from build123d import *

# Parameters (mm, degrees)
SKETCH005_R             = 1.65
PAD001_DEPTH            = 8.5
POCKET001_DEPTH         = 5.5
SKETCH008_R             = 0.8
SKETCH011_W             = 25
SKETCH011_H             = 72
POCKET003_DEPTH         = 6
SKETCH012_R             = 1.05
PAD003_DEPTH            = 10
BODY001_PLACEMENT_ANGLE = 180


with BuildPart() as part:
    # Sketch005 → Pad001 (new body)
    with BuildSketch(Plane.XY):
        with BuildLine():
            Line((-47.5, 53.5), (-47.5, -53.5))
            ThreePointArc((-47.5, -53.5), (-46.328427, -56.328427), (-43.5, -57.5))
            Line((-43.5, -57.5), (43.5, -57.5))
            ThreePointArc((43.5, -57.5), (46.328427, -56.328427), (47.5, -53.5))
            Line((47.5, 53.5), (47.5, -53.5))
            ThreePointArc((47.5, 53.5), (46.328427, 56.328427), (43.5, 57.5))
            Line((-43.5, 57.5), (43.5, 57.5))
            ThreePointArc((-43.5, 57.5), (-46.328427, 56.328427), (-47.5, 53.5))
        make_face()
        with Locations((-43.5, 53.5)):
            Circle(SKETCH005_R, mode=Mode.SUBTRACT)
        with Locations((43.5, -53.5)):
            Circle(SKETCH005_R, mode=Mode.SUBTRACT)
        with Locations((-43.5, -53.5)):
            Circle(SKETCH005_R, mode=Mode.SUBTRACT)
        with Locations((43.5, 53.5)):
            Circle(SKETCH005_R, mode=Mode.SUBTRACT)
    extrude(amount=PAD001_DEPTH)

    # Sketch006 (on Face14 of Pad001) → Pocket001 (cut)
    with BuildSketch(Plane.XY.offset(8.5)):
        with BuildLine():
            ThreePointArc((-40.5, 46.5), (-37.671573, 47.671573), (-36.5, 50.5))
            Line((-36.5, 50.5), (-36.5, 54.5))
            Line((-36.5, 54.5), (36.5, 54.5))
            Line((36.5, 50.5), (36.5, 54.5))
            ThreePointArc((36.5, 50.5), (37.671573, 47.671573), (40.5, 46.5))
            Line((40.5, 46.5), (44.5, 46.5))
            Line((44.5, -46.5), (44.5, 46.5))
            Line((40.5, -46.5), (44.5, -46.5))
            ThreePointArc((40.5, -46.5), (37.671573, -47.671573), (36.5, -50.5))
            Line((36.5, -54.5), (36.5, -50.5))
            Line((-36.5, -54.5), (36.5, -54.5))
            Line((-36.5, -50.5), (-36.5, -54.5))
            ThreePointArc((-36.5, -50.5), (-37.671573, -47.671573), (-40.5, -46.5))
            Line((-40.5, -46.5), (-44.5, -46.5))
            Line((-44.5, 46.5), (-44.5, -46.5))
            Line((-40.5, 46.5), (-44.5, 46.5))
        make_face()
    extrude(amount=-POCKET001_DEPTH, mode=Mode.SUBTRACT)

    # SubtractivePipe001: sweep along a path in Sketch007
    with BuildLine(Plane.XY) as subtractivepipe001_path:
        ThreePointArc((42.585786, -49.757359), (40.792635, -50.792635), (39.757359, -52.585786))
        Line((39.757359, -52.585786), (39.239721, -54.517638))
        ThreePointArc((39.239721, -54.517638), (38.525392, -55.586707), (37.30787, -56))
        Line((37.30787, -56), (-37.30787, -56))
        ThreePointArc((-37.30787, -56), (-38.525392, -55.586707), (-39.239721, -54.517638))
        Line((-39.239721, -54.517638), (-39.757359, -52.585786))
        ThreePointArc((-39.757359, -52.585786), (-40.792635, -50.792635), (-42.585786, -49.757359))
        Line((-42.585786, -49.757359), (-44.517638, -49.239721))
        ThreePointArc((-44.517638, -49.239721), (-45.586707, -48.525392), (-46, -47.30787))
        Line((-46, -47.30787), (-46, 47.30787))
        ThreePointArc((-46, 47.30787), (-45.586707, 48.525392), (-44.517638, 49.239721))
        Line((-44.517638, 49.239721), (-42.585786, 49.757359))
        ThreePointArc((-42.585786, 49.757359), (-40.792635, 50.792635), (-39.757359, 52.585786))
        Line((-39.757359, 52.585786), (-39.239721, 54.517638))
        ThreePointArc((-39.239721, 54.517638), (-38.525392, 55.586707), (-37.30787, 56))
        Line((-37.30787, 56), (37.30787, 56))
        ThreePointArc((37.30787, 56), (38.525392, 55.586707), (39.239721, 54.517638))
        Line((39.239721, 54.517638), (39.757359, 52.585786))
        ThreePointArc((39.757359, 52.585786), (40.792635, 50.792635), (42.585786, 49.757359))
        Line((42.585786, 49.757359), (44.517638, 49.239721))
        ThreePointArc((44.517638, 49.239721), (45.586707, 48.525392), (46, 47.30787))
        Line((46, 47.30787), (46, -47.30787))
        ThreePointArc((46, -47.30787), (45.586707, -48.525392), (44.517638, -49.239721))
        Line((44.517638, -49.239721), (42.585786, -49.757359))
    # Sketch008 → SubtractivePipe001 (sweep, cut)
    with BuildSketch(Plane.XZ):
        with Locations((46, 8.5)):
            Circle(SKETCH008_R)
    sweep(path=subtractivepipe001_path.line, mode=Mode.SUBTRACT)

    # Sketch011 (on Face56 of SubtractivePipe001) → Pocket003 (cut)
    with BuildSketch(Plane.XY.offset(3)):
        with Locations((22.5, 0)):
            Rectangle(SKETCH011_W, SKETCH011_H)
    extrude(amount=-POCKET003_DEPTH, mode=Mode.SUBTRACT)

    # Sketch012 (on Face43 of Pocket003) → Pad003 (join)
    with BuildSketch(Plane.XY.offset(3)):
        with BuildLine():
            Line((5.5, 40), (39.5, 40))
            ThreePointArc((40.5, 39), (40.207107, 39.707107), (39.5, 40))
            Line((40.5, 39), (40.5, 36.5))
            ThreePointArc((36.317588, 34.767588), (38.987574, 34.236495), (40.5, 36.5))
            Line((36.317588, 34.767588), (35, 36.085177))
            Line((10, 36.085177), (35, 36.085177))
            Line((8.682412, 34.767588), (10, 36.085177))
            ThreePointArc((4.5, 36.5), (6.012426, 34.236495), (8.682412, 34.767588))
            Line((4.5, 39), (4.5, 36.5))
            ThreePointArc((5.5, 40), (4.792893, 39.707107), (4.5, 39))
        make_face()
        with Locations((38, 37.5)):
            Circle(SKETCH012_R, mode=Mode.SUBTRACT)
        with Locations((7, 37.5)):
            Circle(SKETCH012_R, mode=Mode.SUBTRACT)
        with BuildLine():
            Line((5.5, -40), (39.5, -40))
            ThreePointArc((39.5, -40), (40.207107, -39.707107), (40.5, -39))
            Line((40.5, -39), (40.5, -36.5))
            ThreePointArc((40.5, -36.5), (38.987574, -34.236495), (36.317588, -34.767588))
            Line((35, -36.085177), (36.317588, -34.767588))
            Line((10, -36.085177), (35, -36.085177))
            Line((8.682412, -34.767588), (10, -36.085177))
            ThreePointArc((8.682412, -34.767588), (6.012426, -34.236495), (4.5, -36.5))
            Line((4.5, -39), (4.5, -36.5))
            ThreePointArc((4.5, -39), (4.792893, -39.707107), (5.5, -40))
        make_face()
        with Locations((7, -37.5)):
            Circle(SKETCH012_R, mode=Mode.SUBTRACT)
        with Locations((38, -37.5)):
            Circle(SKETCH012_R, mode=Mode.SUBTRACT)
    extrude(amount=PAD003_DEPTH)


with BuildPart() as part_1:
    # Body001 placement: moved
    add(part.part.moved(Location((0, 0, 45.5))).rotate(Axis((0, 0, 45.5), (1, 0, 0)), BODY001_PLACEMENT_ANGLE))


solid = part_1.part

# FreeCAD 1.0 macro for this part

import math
import FreeCAD as App
import Part
import Sketcher
from FreeCAD import Vector
Q = App.Units.Quantity

doc = App.newDocument("Part")
body = doc.addObject("PartDesign::Body", "Body")

# Sketch on XY plane
sketch1 = body.newObject("Sketcher::SketchObject", "Sketch")
sketch1.AttachmentSupport = (doc.getObject("XY_Plane"), [""])
sketch1.MapMode = "FlatFace"
sketch1.addGeometry(Part.LineSegment(Vector(-47.5, 53.5, 0), Vector(-47.5, -53.5, 0)), False)
sketch1.addGeometry(Part.ArcOfCircle(Part.Circle(Vector(-43.5, -53.5, 0), Vector(0, 0, 1), 4), math.radians(-179.999994), math.radians(-90.000006)), False)
sketch1.addGeometry(Part.LineSegment(Vector(-43.5, -57.5, 0), Vector(43.5, -57.5, 0)), False)
sketch1.addGeometry(Part.ArcOfCircle(Part.Circle(Vector(43.5, -53.5, 0), Vector(0, 0, 1), 4), math.radians(-89.999994), math.radians(-0.000006)), False)
sketch1.addGeometry(Part.LineSegment(Vector(47.5, -53.5, 0), Vector(47.5, 53.5, 0)), False)
sketch1.addGeometry(Part.ArcOfCircle(Part.Circle(Vector(43.5, 53.5, 0), Vector(0, 0, 1), 4), math.radians(0.000006), math.radians(89.999994)), False)
sketch1.addGeometry(Part.LineSegment(Vector(43.5, 57.5, 0), Vector(-43.5, 57.5, 0)), False)
sketch1.addGeometry(Part.ArcOfCircle(Part.Circle(Vector(-43.5, 53.5, 0), Vector(0, 0, 1), 4), math.radians(90.000006), math.radians(179.999994)), False)
sketch1.addGeometry(Part.Circle(Vector(-43.5, -53.5, 0), Vector(0, 0, 1), 1.65), False)
sketch1.addGeometry(Part.Circle(Vector(43.5, -53.5, 0), Vector(0, 0, 1), 1.65), False)
sketch1.addGeometry(Part.Circle(Vector(-43.5, 53.5, 0), Vector(0, 0, 1), 1.65), False)
sketch1.addGeometry(Part.Circle(Vector(43.5, 53.5, 0), Vector(0, 0, 1), 1.65), False)
sketch1.addConstraint(Sketcher.Constraint("Tangent", 0, 2, 1, 1))
sketch1.addConstraint(Sketcher.Constraint("Tangent", 1, 2, 2, 1))
sketch1.addConstraint(Sketcher.Constraint("Tangent", 2, 2, 3, 1))
sketch1.addConstraint(Sketcher.Constraint("Tangent", 3, 2, 4, 1))
sketch1.addConstraint(Sketcher.Constraint("Tangent", 4, 2, 5, 1))
sketch1.addConstraint(Sketcher.Constraint("Tangent", 5, 2, 6, 1))
sketch1.addConstraint(Sketcher.Constraint("Tangent", 6, 2, 7, 1))
sketch1.addConstraint(Sketcher.Constraint("Tangent", 7, 2, 0, 1))
sketch1.addConstraint(Sketcher.Constraint("Vertical", 0))
sketch1.addConstraint(Sketcher.Constraint("Horizontal", 2))
sketch1.addConstraint(Sketcher.Constraint("Vertical", 4))
sketch1.addConstraint(Sketcher.Constraint("Horizontal", 6))
sketch1.addConstraint(Sketcher.Constraint("Coincident", 8, 3, 1, 3))
sketch1.addConstraint(Sketcher.Constraint("Coincident", 9, 3, 3, 3))
sketch1.addConstraint(Sketcher.Constraint("Coincident", 10, 3, 7, 3))
sketch1.addConstraint(Sketcher.Constraint("Coincident", 11, 3, 5, 3))
sketch1.addConstraint(Sketcher.Constraint("Equal", 1, 3))
sketch1.addConstraint(Sketcher.Constraint("Equal", 3, 5))
sketch1.addConstraint(Sketcher.Constraint("Equal", 5, 7))
sketch1.addConstraint(Sketcher.Constraint("Equal", 8, 9))
sketch1.addConstraint(Sketcher.Constraint("Equal", 9, 10))
sketch1.addConstraint(Sketcher.Constraint("Equal", 10, 11))
sketch1.addConstraint(Sketcher.Constraint("Symmetric", 1, 3, 5, 3, -1, 1))
sketch1.addConstraint(Sketcher.Constraint("Radius", 1, Q("4 mm")))
sketch1.addConstraint(Sketcher.Constraint("Diameter", 8, Q("3.3 mm")))
sketch1.addConstraint(Sketcher.Constraint("DistanceX", 2, 1, 2, 2, Q("87 mm")))
sketch1.addConstraint(Sketcher.Constraint("DistanceY", 0, 2, 0, 1, Q("107 mm")))
pad1 = body.newObject("PartDesign::Pad", "Pad")
pad1.Profile = sketch1
pad1.Length = 8.5

# Sketch on XY plane
sketch2 = body.newObject("Sketcher::SketchObject", "Sketch001")
sketch2.AttachmentSupport = (doc.getObject("XY_Plane"), [""])
sketch2.MapMode = "FlatFace"
sketch2.AttachmentOffset = App.Placement(Vector(0, 0, 8.5), App.Rotation())
sketch2.addGeometry(Part.ArcOfCircle(Part.Circle(Vector(-40.5, 50.5, 0), Vector(0, 0, 1), 4), math.radians(-89.999994), math.radians(-0.000006)), False)
sketch2.addGeometry(Part.LineSegment(Vector(-40.5, 46.5, 0), Vector(-44.5, 46.5, 0)), False)
sketch2.addGeometry(Part.LineSegment(Vector(-44.5, 46.5, 0), Vector(-44.5, -46.5, 0)), False)
sketch2.addGeometry(Part.LineSegment(Vector(-44.5, -46.5, 0), Vector(-40.5, -46.5, 0)), False)
sketch2.addGeometry(Part.ArcOfCircle(Part.Circle(Vector(-40.5, -50.5, 0), Vector(0, 0, 1), 4), math.radians(0.000006), math.radians(89.999994)), False)
sketch2.addGeometry(Part.LineSegment(Vector(-36.5, -50.5, 0), Vector(-36.5, -54.5, 0)), False)
sketch2.addGeometry(Part.LineSegment(Vector(-36.5, -54.5, 0), Vector(36.5, -54.5, 0)), False)
sketch2.addGeometry(Part.LineSegment(Vector(36.5, -54.5, 0), Vector(36.5, -50.5, 0)), False)
sketch2.addGeometry(Part.ArcOfCircle(Part.Circle(Vector(40.5, -50.5, 0), Vector(0, 0, 1), 4), math.radians(90.000006), math.radians(179.999994)), False)
sketch2.addGeometry(Part.LineSegment(Vector(40.5, -46.5, 0), Vector(44.5, -46.5, 0)), False)
sketch2.addGeometry(Part.LineSegment(Vector(44.5, -46.5, 0), Vector(44.5, 46.5, 0)), False)
sketch2.addGeometry(Part.LineSegment(Vector(44.5, 46.5, 0), Vector(40.5, 46.5, 0)), False)
sketch2.addGeometry(Part.ArcOfCircle(Part.Circle(Vector(40.5, 50.5, 0), Vector(0, 0, 1), 4), math.radians(-179.999994), math.radians(-90.000006)), False)
sketch2.addGeometry(Part.LineSegment(Vector(36.5, 50.5, 0), Vector(36.5, 54.5, 0)), False)
sketch2.addGeometry(Part.LineSegment(Vector(36.5, 54.5, 0), Vector(-36.5, 54.5, 0)), False)
sketch2.addGeometry(Part.LineSegment(Vector(-36.5, 54.5, 0), Vector(-36.5, 50.5, 0)), False)
sketch2.addConstraint(Sketcher.Constraint("Tangent", 0, 1, 1, 1))
sketch2.addConstraint(Sketcher.Constraint("Coincident", 1, 2, 2, 1))
sketch2.addConstraint(Sketcher.Constraint("Coincident", 2, 2, 3, 1))
sketch2.addConstraint(Sketcher.Constraint("Tangent", 3, 2, 4, 2))
sketch2.addConstraint(Sketcher.Constraint("Tangent", 4, 1, 5, 1))
sketch2.addConstraint(Sketcher.Constraint("Coincident", 5, 2, 6, 1))
sketch2.addConstraint(Sketcher.Constraint("Coincident", 6, 2, 7, 1))
sketch2.addConstraint(Sketcher.Constraint("Tangent", 7, 2, 8, 2))
sketch2.addConstraint(Sketcher.Constraint("Tangent", 8, 1, 9, 1))
sketch2.addConstraint(Sketcher.Constraint("Coincident", 9, 2, 10, 1))
sketch2.addConstraint(Sketcher.Constraint("Coincident", 10, 2, 11, 1))
sketch2.addConstraint(Sketcher.Constraint("Tangent", 11, 2, 12, 2))
sketch2.addConstraint(Sketcher.Constraint("Tangent", 12, 1, 13, 1))
sketch2.addConstraint(Sketcher.Constraint("Coincident", 13, 2, 14, 1))
sketch2.addConstraint(Sketcher.Constraint("Coincident", 14, 2, 15, 1))
sketch2.addConstraint(Sketcher.Constraint("Tangent", 15, 2, 0, 2))
sketch2.addConstraint(Sketcher.Constraint("Horizontal", 1))
sketch2.addConstraint(Sketcher.Constraint("Vertical", 2))
sketch2.addConstraint(Sketcher.Constraint("Horizontal", 3))
sketch2.addConstraint(Sketcher.Constraint("Vertical", 5))
sketch2.addConstraint(Sketcher.Constraint("Horizontal", 6))
sketch2.addConstraint(Sketcher.Constraint("Vertical", 7))
sketch2.addConstraint(Sketcher.Constraint("Horizontal", 9))
sketch2.addConstraint(Sketcher.Constraint("Vertical", 10))
sketch2.addConstraint(Sketcher.Constraint("Horizontal", 11))
sketch2.addConstraint(Sketcher.Constraint("Vertical", 13))
sketch2.addConstraint(Sketcher.Constraint("Horizontal", 14))
sketch2.addConstraint(Sketcher.Constraint("Vertical", 15))
sketch2.addConstraint(Sketcher.Constraint("Equal", 0, 4))
sketch2.addConstraint(Sketcher.Constraint("Equal", 4, 8))
sketch2.addConstraint(Sketcher.Constraint("Equal", 8, 12))
sketch2.addConstraint(Sketcher.Constraint("Symmetric", 0, 3, 8, 3, -1, 1))
sketch2.addConstraint(Sketcher.Constraint("Symmetric", 4, 3, 12, 3, -1, 1))
sketch2.addConstraint(Sketcher.Constraint("Symmetric", 4, 3, 8, 3, -2))
sketch2.addConstraint(Sketcher.Constraint("Equal", 3, 9))
sketch2.addConstraint(Sketcher.Constraint("Equal", 11, 5))
sketch2.addConstraint(Sketcher.Constraint("Equal", 7, 13))
sketch2.addConstraint(Sketcher.Constraint("Radius", 0, Q("4 mm")))
sketch2.addConstraint(Sketcher.Constraint("DistanceX", 1, 2, 1, 1, Q("4 mm")))
sketch2.addConstraint(Sketcher.Constraint("DistanceX", 6, 1, 6, 2, Q("73 mm")))
sketch2.addConstraint(Sketcher.Constraint("DistanceY", 2, 2, 2, 1, Q("93 mm")))
pocket1 = body.newObject("PartDesign::Pocket", "Pocket")
pocket1.Profile = sketch2
pocket1.Length = 5.5

# Sketch on XZ plane
sketch3 = body.newObject("Sketcher::SketchObject", "Sketch002")
sketch3.AttachmentSupport = (doc.getObject("XZ_Plane"), [""])
sketch3.MapMode = "FlatFace"
sketch3.addGeometry(Part.Circle(Vector(46, 8.5, 0), Vector(0, 0, 1), 0.8), False)
sketch3.addConstraint(Sketcher.Constraint("Diameter", 0, Q("1.6 mm")))
sketch3.addConstraint(Sketcher.Constraint("DistanceX", -1, 1, 0, 3, Q("46 mm")))
sketch3.addConstraint(Sketcher.Constraint("DistanceY", -1, 1, 0, 3, Q("8.5 mm")))

# Sketch on XY plane
sketch4 = body.newObject("Sketcher::SketchObject", "Sketch003")
sketch4.AttachmentSupport = (doc.getObject("XY_Plane"), [""])
sketch4.MapMode = "FlatFace"
sketch4.addGeometry(Part.ArcOfCircle(Part.Circle(Vector(43.621061, -53.621061, 0), Vector(0, 0, 1), 3.999999), math.radians(104.99999), math.radians(165.00001)), False)
sketch4.addGeometry(Part.LineSegment(Vector(39.757359, -52.585786, 0), Vector(39.239721, -54.517638, 0)), False)
sketch4.addGeometry(Part.ArcOfCircle(Part.Circle(Vector(37.30787, -54.000001, 0), Vector(0, 0, 1), 1.999999), math.radians(-89.999993), math.radians(-14.999985)), False)
sketch4.addGeometry(Part.LineSegment(Vector(37.30787, -56, 0), Vector(-37.30787, -56, 0)), False)
sketch4.addGeometry(Part.ArcOfCircle(Part.Circle(Vector(-37.30787, -54.000001, 0), Vector(0, 0, 1), 1.999999), math.radians(-165.000015), math.radians(-90.000007)), False)
sketch4.addGeometry(Part.LineSegment(Vector(-39.239721, -54.517638, 0), Vector(-39.757359, -52.585786, 0)), False)
sketch4.addGeometry(Part.ArcOfCircle(Part.Circle(Vector(-43.621061, -53.621061, 0), Vector(0, 0, 1), 3.999999), math.radians(14.99999), math.radians(75.00001)), False)
sketch4.addGeometry(Part.LineSegment(Vector(-42.585786, -49.757359, 0), Vector(-44.517638, -49.239721, 0)), False)
sketch4.addGeometry(Part.ArcOfCircle(Part.Circle(Vector(-44.000001, -47.30787, 0), Vector(0, 0, 1), 1.999999), math.radians(-179.999993), math.radians(-104.999985)), False)
sketch4.addGeometry(Part.LineSegment(Vector(-46, -47.30787, 0), Vector(-46, 47.30787, 0)), False)
sketch4.addGeometry(Part.ArcOfCircle(Part.Circle(Vector(-44.000001, 47.30787, 0), Vector(0, 0, 1), 1.999999), math.radians(104.999985), math.radians(179.999993)), False)
sketch4.addGeometry(Part.LineSegment(Vector(-44.517638, 49.239721, 0), Vector(-42.585786, 49.757359, 0)), False)
sketch4.addGeometry(Part.ArcOfCircle(Part.Circle(Vector(-43.621061, 53.621061, 0), Vector(0, 0, 1), 3.999999), math.radians(-75.00001), math.radians(-14.99999)), False)
sketch4.addGeometry(Part.LineSegment(Vector(-39.757359, 52.585786, 0), Vector(-39.239721, 54.517638, 0)), False)
sketch4.addGeometry(Part.ArcOfCircle(Part.Circle(Vector(-37.30787, 54.000001, 0), Vector(0, 0, 1), 1.999999), math.radians(90.000007), math.radians(165.000015)), False)
sketch4.addGeometry(Part.LineSegment(Vector(-37.30787, 56, 0), Vector(37.30787, 56, 0)), False)
sketch4.addGeometry(Part.ArcOfCircle(Part.Circle(Vector(37.30787, 54.000001, 0), Vector(0, 0, 1), 1.999999), math.radians(14.999985), math.radians(89.999993)), False)
sketch4.addGeometry(Part.LineSegment(Vector(39.239721, 54.517638, 0), Vector(39.757359, 52.585786, 0)), False)
sketch4.addGeometry(Part.ArcOfCircle(Part.Circle(Vector(43.621061, 53.621061, 0), Vector(0, 0, 1), 3.999999), math.radians(-165.00001), math.radians(-104.99999)), False)
sketch4.addGeometry(Part.LineSegment(Vector(42.585786, 49.757359, 0), Vector(44.517638, 49.239721, 0)), False)
sketch4.addGeometry(Part.ArcOfCircle(Part.Circle(Vector(44.000001, 47.30787, 0), Vector(0, 0, 1), 1.999999), math.radians(0.000007), math.radians(75.000015)), False)
sketch4.addGeometry(Part.LineSegment(Vector(46, 47.30787, 0), Vector(46, -47.30787, 0)), False)
sketch4.addGeometry(Part.ArcOfCircle(Part.Circle(Vector(44.000001, -47.30787, 0), Vector(0, 0, 1), 1.999999), math.radians(-75.000015), math.radians(-0.000007)), False)
sketch4.addGeometry(Part.LineSegment(Vector(44.517638, -49.239721, 0), Vector(42.585786, -49.757359, 0)), False)
sketch4.addConstraint(Sketcher.Constraint("Tangent", 0, 2, 1, 1))
sketch4.addConstraint(Sketcher.Constraint("Tangent", 1, 2, 2, 2))
sketch4.addConstraint(Sketcher.Constraint("Tangent", 2, 1, 3, 1))
sketch4.addConstraint(Sketcher.Constraint("Tangent", 3, 2, 4, 2))
sketch4.addConstraint(Sketcher.Constraint("Tangent", 4, 1, 5, 1))
sketch4.addConstraint(Sketcher.Constraint("Tangent", 5, 2, 6, 1))
sketch4.addConstraint(Sketcher.Constraint("Tangent", 6, 2, 7, 1))
sketch4.addConstraint(Sketcher.Constraint("Tangent", 7, 2, 8, 2))
sketch4.addConstraint(Sketcher.Constraint("Tangent", 8, 1, 9, 1))
sketch4.addConstraint(Sketcher.Constraint("Tangent", 9, 2, 10, 2))
sketch4.addConstraint(Sketcher.Constraint("Tangent", 10, 1, 11, 1))
sketch4.addConstraint(Sketcher.Constraint("Tangent", 11, 2, 12, 1))
sketch4.addConstraint(Sketcher.Constraint("Tangent", 12, 2, 13, 1))
sketch4.addConstraint(Sketcher.Constraint("Tangent", 13, 2, 14, 2))
sketch4.addConstraint(Sketcher.Constraint("Tangent", 14, 1, 15, 1))
sketch4.addConstraint(Sketcher.Constraint("Tangent", 15, 2, 16, 2))
sketch4.addConstraint(Sketcher.Constraint("Tangent", 16, 1, 17, 1))
sketch4.addConstraint(Sketcher.Constraint("Tangent", 17, 2, 18, 1))
sketch4.addConstraint(Sketcher.Constraint("Tangent", 18, 2, 19, 1))
sketch4.addConstraint(Sketcher.Constraint("Tangent", 19, 2, 20, 2))
sketch4.addConstraint(Sketcher.Constraint("Tangent", 20, 1, 21, 1))
sketch4.addConstraint(Sketcher.Constraint("Tangent", 21, 2, 22, 2))
sketch4.addConstraint(Sketcher.Constraint("Tangent", 22, 1, 23, 1))
sketch4.addConstraint(Sketcher.Constraint("Tangent", 23, 2, 0, 1))
sketch4.addConstraint(Sketcher.Constraint("Horizontal", 3))
sketch4.addConstraint(Sketcher.Constraint("Vertical", 9))
sketch4.addConstraint(Sketcher.Constraint("Horizontal", 15))
sketch4.addConstraint(Sketcher.Constraint("Vertical", 21))
sketch4.addConstraint(Sketcher.Constraint("Equal", 2, 4))
sketch4.addConstraint(Sketcher.Constraint("Equal", 0, 6))
sketch4.addConstraint(Sketcher.Constraint("Equal", 4, 8))
sketch4.addConstraint(Sketcher.Constraint("Equal", 8, 10))
sketch4.addConstraint(Sketcher.Constraint("Equal", 6, 12))
sketch4.addConstraint(Sketcher.Constraint("Equal", 10, 14))
sketch4.addConstraint(Sketcher.Constraint("Equal", 14, 16))
sketch4.addConstraint(Sketcher.Constraint("Equal", 12, 18))
sketch4.addConstraint(Sketcher.Constraint("Equal", 16, 20))
sketch4.addConstraint(Sketcher.Constraint("Equal", 20, 22))
sketch4.addConstraint(Sketcher.Constraint("Symmetric", 0, 3, 12, 3, -1, 1))
sketch4.addConstraint(Sketcher.Constraint("Symmetric", 2, 3, 14, 3, -1, 1))
sketch4.addConstraint(Sketcher.Constraint("Symmetric", 6, 3, 18, 3, -1, 1))
sketch4.addConstraint(Sketcher.Constraint("Symmetric", 8, 3, 20, 3, -1, 1))
sketch4.addConstraint(Sketcher.Constraint("Symmetric", 0, 3, 6, 3, -2))
sketch4.addConstraint(Sketcher.Constraint("Perpendicular", 1, 7))
sketch4.addConstraint(Sketcher.Constraint("Perpendicular", 5, 11))
sketch4.addConstraint(Sketcher.Constraint("Perpendicular", 11, 17))
sketch4.addConstraint(Sketcher.Constraint("Perpendicular", 17, 23))
sketch4.addConstraint(Sketcher.Constraint("Horizontal", 10, 3, 20, 3))
sketch4.addConstraint(Sketcher.Constraint("Equal", 5, 7))
sketch4.addConstraint(Sketcher.Constraint("Radius", 0, Q("3.999999 mm")))
sketch4.addConstraint(Sketcher.Constraint("Radius", 2, Q("1.999999 mm")))
sketch4.addConstraint(Sketcher.Constraint("Angle", 1, Q("-104.999995 deg")))
sketch4.addConstraint(Sketcher.Constraint("Distance", 1, Q("2 mm")))
sketch4.addConstraint(Sketcher.Constraint("DistanceY", 2, 3, -1, 1, Q("54.000001 mm")))
sketch4.addConstraint(Sketcher.Constraint("DistanceX", 8, 3, -1, 1, Q("44.000001 mm")))
doc.recompute()

subtractivepipe = body.newObject("PartDesign::SubtractivePipe", "SubtractivePipe")
subtractivepipe.Profile = sketch3
subtractivepipe.Spine = (sketch4, ["Edge1", "Edge2", "Edge3", "Edge4", "Edge5", "Edge6", "Edge7", "Edge8", "Edge9", "Edge10", "Edge11", "Edge12", "Edge13", "Edge14", "Edge15", "Edge16", "Edge17", "Edge18", "Edge19", "Edge20", "Edge21", "Edge22", "Edge23", "Edge24"])

# Sketch on XY plane
sketch5 = body.newObject("Sketcher::SketchObject", "Sketch004")
sketch5.AttachmentSupport = (doc.getObject("XY_Plane"), [""])
sketch5.MapMode = "FlatFace"
sketch5.AttachmentOffset = App.Placement(Vector(0, 0, 3), App.Rotation())
sketch5.addGeometry(Part.LineSegment(Vector(10, 36, 0), Vector(10, -36, 0)), False)
sketch5.addGeometry(Part.LineSegment(Vector(10, -36, 0), Vector(35, -36, 0)), False)
sketch5.addGeometry(Part.LineSegment(Vector(35, -36, 0), Vector(35, 36, 0)), False)
sketch5.addGeometry(Part.LineSegment(Vector(35, 36, 0), Vector(10, 36, 0)), False)
sketch5.addConstraint(Sketcher.Constraint("Coincident", 0, 2, 1, 1))
sketch5.addConstraint(Sketcher.Constraint("Coincident", 1, 2, 2, 1))
sketch5.addConstraint(Sketcher.Constraint("Coincident", 2, 2, 3, 1))
sketch5.addConstraint(Sketcher.Constraint("Coincident", 3, 2, 0, 1))
sketch5.addConstraint(Sketcher.Constraint("Vertical", 0))
sketch5.addConstraint(Sketcher.Constraint("Horizontal", 1))
sketch5.addConstraint(Sketcher.Constraint("Vertical", 2))
sketch5.addConstraint(Sketcher.Constraint("Horizontal", 3))
sketch5.addConstraint(Sketcher.Constraint("DistanceX", 1, 1, 1, 2, Q("25 mm")))
sketch5.addConstraint(Sketcher.Constraint("DistanceY", 0, 2, 0, 1, Q("72 mm")))
sketch5.addConstraint(Sketcher.Constraint("DistanceX", -1, 1, 0, 2, Q("10 mm")))
sketch5.addConstraint(Sketcher.Constraint("DistanceY", 0, 2, -1, 1, Q("36 mm")))
pocket2 = body.newObject("PartDesign::Pocket", "Pocket001")
pocket2.Profile = sketch5
pocket2.Length = 6

# Sketch on XY plane
sketch6 = body.newObject("Sketcher::SketchObject", "Sketch005")
sketch6.AttachmentSupport = (doc.getObject("XY_Plane"), [""])
sketch6.MapMode = "FlatFace"
sketch6.AttachmentOffset = App.Placement(Vector(0, 0, 3), App.Rotation())
sketch6.addGeometry(Part.LineSegment(Vector(39.5, 40, 0), Vector(5.5, 40, 0)), False)
sketch6.addGeometry(Part.ArcOfCircle(Part.Circle(Vector(5.499999, 39.000001, 0), Vector(0, 0, 1), 0.999999), math.radians(89.999957), math.radians(180.000043)), False)
sketch6.addGeometry(Part.LineSegment(Vector(4.5, 39, 0), Vector(4.5, 36.5, 0)), False)
sketch6.addGeometry(Part.ArcOfCircle(Part.Circle(Vector(6.95, 36.5, 0), Vector(0, 0, 1), 2.45), math.radians(-179.999992), math.radians(-45.000013)), False)
sketch6.addGeometry(Part.LineSegment(Vector(8.682412, 34.767588, 0), Vector(10, 36.085177, 0)), False)
sketch6.addGeometry(Part.LineSegment(Vector(10, 36.085177, 0), Vector(35, 36.085177, 0)), False)
sketch6.addGeometry(Part.LineSegment(Vector(35, 36.085177, 0), Vector(36.317588, 34.767588, 0)), False)
sketch6.addGeometry(Part.ArcOfCircle(Part.Circle(Vector(38.05, 36.5, 0), Vector(0, 0, 1), 2.45), math.radians(-134.999987), math.radians(-0.000008)), False)
sketch6.addGeometry(Part.LineSegment(Vector(40.5, 36.5, 0), Vector(40.5, 39, 0)), False)
sketch6.addGeometry(Part.ArcOfCircle(Part.Circle(Vector(39.500001, 39.000001, 0), Vector(0, 0, 1), 0.999999), math.radians(-0.000043), math.radians(90.000043)), False)
sketch6.addGeometry(Part.Circle(Vector(38, 37.5, 0), Vector(0, 0, 1), 1.05), False)
sketch6.addGeometry(Part.Circle(Vector(7, 37.5, 0), Vector(0, 0, 1), 1.05), False)
sketch6.addGeometry(Part.LineSegment(Vector(5.5, -40, 0), Vector(39.5, -40, 0)), False)
sketch6.addGeometry(Part.ArcOfCircle(Part.Circle(Vector(39.500001, -39.000001, 0), Vector(0, 0, 1), 0.999999), math.radians(-90.000043), math.radians(0.000043)), False)
sketch6.addGeometry(Part.LineSegment(Vector(40.5, -39, 0), Vector(40.5, -36.5, 0)), False)
sketch6.addGeometry(Part.ArcOfCircle(Part.Circle(Vector(38.05, -36.5, 0), Vector(0, 0, 1), 2.45), math.radians(0.000008), math.radians(134.999987)), False)
sketch6.addGeometry(Part.LineSegment(Vector(36.317588, -34.767588, 0), Vector(35, -36.085177, 0)), False)
sketch6.addGeometry(Part.LineSegment(Vector(35, -36.085177, 0), Vector(10, -36.085177, 0)), False)
sketch6.addGeometry(Part.LineSegment(Vector(10, -36.085177, 0), Vector(8.682412, -34.767588, 0)), False)
sketch6.addGeometry(Part.ArcOfCircle(Part.Circle(Vector(6.95, -36.5, 0), Vector(0, 0, 1), 2.45), math.radians(45.000013), math.radians(179.999992)), False)
sketch6.addGeometry(Part.LineSegment(Vector(4.5, -36.5, 0), Vector(4.5, -39, 0)), False)
sketch6.addGeometry(Part.ArcOfCircle(Part.Circle(Vector(5.499999, -39.000001, 0), Vector(0, 0, 1), 0.999999), math.radians(179.999957), math.radians(270.000043)), False)
sketch6.addGeometry(Part.Circle(Vector(7, -37.5, 0), Vector(0, 0, 1), 1.05), False)
sketch6.addGeometry(Part.Circle(Vector(38, -37.5, 0), Vector(0, 0, 1), 1.05), False)
sketch6.addConstraint(Sketcher.Constraint("Tangent", 0, 2, 1, 1))
sketch6.addConstraint(Sketcher.Constraint("Tangent", 1, 2, 2, 1))
sketch6.addConstraint(Sketcher.Constraint("Tangent", 2, 2, 3, 1))
sketch6.addConstraint(Sketcher.Constraint("Tangent", 3, 2, 4, 1))
sketch6.addConstraint(Sketcher.Constraint("Coincident", 4, 2, 5, 1))
sketch6.addConstraint(Sketcher.Constraint("Coincident", 5, 2, 6, 1))
sketch6.addConstraint(Sketcher.Constraint("Tangent", 6, 2, 7, 1))
sketch6.addConstraint(Sketcher.Constraint("Tangent", 7, 2, 8, 1))
sketch6.addConstraint(Sketcher.Constraint("Tangent", 8, 2, 9, 1))
sketch6.addConstraint(Sketcher.Constraint("Tangent", 9, 2, 0, 1))
sketch6.addConstraint(Sketcher.Constraint("Tangent", 12, 2, 13, 1))
sketch6.addConstraint(Sketcher.Constraint("Tangent", 13, 2, 14, 1))
sketch6.addConstraint(Sketcher.Constraint("Tangent", 14, 2, 15, 1))
sketch6.addConstraint(Sketcher.Constraint("Tangent", 15, 2, 16, 1))
sketch6.addConstraint(Sketcher.Constraint("Coincident", 16, 2, 17, 1))
sketch6.addConstraint(Sketcher.Constraint("Coincident", 17, 2, 18, 1))
sketch6.addConstraint(Sketcher.Constraint("Tangent", 18, 2, 19, 1))
sketch6.addConstraint(Sketcher.Constraint("Tangent", 19, 2, 20, 1))
sketch6.addConstraint(Sketcher.Constraint("Tangent", 20, 2, 21, 1))
sketch6.addConstraint(Sketcher.Constraint("Tangent", 21, 2, 12, 1))
sketch6.addConstraint(Sketcher.Constraint("Horizontal", 0))
sketch6.addConstraint(Sketcher.Constraint("Vertical", 2))
sketch6.addConstraint(Sketcher.Constraint("Horizontal", 5))
sketch6.addConstraint(Sketcher.Constraint("Vertical", 8))
sketch6.addConstraint(Sketcher.Constraint("Horizontal", 12))
sketch6.addConstraint(Sketcher.Constraint("Vertical", 14))
sketch6.addConstraint(Sketcher.Constraint("Horizontal", 17))
sketch6.addConstraint(Sketcher.Constraint("Vertical", 20))
sketch6.addConstraint(Sketcher.Constraint("Equal", 3, 7))
sketch6.addConstraint(Sketcher.Constraint("Equal", 1, 9))
sketch6.addConstraint(Sketcher.Constraint("Equal", 10, 11))
sketch6.addConstraint(Sketcher.Constraint("Equal", 9, 13))
sketch6.addConstraint(Sketcher.Constraint("Equal", 7, 15))
sketch6.addConstraint(Sketcher.Constraint("Equal", 15, 19))
sketch6.addConstraint(Sketcher.Constraint("Equal", 13, 21))
sketch6.addConstraint(Sketcher.Constraint("Equal", 11, 22))
sketch6.addConstraint(Sketcher.Constraint("Equal", 22, 23))
sketch6.addConstraint(Sketcher.Constraint("Symmetric", 9, 3, 13, 3, -1))
sketch6.addConstraint(Sketcher.Constraint("Symmetric", 3, 3, 19, 3, -1))
sketch6.addConstraint(Sketcher.Constraint("Symmetric", 11, 3, 22, 3, -1))
sketch6.addConstraint(Sketcher.Constraint("Symmetric", 10, 3, 23, 3, -1))
sketch6.addConstraint(Sketcher.Constraint("Symmetric", 6, 2, 15, 2, -1))
sketch6.addConstraint(Sketcher.Constraint("Symmetric", 4, 2, 17, 2, -1))
sketch6.addConstraint(Sketcher.Constraint("Perpendicular", 4, 6))
sketch6.addConstraint(Sketcher.Constraint("Perpendicular", 6, 16))
sketch6.addConstraint(Sketcher.Constraint("Horizontal", 3, 3, 7, 3))
sketch6.addConstraint(Sketcher.Constraint("Horizontal", 10, 3, 11, 3))
sketch6.addConstraint(Sketcher.Constraint("Radius", 1, Q("0.999999 mm")))
sketch6.addConstraint(Sketcher.Constraint("Diameter", 10, Q("2.1 mm")))
sketch6.addConstraint(Sketcher.Constraint("DistanceX", 0, 2, 0, 1, Q("34 mm")))
sketch6.addConstraint(Sketcher.Constraint("DistanceX", 5, 1, 5, 2, Q("25 mm")))
sketch6.addConstraint(Sketcher.Constraint("Radius", 3, Q("2.45 mm")))
sketch6.addConstraint(Sketcher.Constraint("DistanceY", 2, 2, 2, 1, Q("2.5 mm")))
sketch6.addConstraint(Sketcher.Constraint("DistanceY", -1, 1, 1, 3, Q("39.000001 mm")))
sketch6.addConstraint(Sketcher.Constraint("DistanceX", -1, 1, 10, 3, Q("38 mm")))
sketch6.addConstraint(Sketcher.Constraint("DistanceX", -1, 1, 11, 3, Q("7 mm")))
sketch6.addConstraint(Sketcher.Constraint("DistanceX", -1, 1, 4, 2, Q("10 mm")))
sketch6.addConstraint(Sketcher.Constraint("DistanceY", 7, 3, 10, 3, Q("1 mm")))
pad2 = body.newObject("PartDesign::Pad", "Pad001")
pad2.Profile = sketch6
pad2.Length = 10
body2 = doc.addObject("PartDesign::Body", "Body001")
doc.recompute()

body.Placement = App.Placement(Vector(0, 0, 45.5), App.Rotation(Vector(1, 0, 0), 180))
boolean = body2.newObject("PartDesign::Boolean", "Boolean")
boolean.Type = "Fuse"
boolean.addObjects([body])

doc.recompute()
